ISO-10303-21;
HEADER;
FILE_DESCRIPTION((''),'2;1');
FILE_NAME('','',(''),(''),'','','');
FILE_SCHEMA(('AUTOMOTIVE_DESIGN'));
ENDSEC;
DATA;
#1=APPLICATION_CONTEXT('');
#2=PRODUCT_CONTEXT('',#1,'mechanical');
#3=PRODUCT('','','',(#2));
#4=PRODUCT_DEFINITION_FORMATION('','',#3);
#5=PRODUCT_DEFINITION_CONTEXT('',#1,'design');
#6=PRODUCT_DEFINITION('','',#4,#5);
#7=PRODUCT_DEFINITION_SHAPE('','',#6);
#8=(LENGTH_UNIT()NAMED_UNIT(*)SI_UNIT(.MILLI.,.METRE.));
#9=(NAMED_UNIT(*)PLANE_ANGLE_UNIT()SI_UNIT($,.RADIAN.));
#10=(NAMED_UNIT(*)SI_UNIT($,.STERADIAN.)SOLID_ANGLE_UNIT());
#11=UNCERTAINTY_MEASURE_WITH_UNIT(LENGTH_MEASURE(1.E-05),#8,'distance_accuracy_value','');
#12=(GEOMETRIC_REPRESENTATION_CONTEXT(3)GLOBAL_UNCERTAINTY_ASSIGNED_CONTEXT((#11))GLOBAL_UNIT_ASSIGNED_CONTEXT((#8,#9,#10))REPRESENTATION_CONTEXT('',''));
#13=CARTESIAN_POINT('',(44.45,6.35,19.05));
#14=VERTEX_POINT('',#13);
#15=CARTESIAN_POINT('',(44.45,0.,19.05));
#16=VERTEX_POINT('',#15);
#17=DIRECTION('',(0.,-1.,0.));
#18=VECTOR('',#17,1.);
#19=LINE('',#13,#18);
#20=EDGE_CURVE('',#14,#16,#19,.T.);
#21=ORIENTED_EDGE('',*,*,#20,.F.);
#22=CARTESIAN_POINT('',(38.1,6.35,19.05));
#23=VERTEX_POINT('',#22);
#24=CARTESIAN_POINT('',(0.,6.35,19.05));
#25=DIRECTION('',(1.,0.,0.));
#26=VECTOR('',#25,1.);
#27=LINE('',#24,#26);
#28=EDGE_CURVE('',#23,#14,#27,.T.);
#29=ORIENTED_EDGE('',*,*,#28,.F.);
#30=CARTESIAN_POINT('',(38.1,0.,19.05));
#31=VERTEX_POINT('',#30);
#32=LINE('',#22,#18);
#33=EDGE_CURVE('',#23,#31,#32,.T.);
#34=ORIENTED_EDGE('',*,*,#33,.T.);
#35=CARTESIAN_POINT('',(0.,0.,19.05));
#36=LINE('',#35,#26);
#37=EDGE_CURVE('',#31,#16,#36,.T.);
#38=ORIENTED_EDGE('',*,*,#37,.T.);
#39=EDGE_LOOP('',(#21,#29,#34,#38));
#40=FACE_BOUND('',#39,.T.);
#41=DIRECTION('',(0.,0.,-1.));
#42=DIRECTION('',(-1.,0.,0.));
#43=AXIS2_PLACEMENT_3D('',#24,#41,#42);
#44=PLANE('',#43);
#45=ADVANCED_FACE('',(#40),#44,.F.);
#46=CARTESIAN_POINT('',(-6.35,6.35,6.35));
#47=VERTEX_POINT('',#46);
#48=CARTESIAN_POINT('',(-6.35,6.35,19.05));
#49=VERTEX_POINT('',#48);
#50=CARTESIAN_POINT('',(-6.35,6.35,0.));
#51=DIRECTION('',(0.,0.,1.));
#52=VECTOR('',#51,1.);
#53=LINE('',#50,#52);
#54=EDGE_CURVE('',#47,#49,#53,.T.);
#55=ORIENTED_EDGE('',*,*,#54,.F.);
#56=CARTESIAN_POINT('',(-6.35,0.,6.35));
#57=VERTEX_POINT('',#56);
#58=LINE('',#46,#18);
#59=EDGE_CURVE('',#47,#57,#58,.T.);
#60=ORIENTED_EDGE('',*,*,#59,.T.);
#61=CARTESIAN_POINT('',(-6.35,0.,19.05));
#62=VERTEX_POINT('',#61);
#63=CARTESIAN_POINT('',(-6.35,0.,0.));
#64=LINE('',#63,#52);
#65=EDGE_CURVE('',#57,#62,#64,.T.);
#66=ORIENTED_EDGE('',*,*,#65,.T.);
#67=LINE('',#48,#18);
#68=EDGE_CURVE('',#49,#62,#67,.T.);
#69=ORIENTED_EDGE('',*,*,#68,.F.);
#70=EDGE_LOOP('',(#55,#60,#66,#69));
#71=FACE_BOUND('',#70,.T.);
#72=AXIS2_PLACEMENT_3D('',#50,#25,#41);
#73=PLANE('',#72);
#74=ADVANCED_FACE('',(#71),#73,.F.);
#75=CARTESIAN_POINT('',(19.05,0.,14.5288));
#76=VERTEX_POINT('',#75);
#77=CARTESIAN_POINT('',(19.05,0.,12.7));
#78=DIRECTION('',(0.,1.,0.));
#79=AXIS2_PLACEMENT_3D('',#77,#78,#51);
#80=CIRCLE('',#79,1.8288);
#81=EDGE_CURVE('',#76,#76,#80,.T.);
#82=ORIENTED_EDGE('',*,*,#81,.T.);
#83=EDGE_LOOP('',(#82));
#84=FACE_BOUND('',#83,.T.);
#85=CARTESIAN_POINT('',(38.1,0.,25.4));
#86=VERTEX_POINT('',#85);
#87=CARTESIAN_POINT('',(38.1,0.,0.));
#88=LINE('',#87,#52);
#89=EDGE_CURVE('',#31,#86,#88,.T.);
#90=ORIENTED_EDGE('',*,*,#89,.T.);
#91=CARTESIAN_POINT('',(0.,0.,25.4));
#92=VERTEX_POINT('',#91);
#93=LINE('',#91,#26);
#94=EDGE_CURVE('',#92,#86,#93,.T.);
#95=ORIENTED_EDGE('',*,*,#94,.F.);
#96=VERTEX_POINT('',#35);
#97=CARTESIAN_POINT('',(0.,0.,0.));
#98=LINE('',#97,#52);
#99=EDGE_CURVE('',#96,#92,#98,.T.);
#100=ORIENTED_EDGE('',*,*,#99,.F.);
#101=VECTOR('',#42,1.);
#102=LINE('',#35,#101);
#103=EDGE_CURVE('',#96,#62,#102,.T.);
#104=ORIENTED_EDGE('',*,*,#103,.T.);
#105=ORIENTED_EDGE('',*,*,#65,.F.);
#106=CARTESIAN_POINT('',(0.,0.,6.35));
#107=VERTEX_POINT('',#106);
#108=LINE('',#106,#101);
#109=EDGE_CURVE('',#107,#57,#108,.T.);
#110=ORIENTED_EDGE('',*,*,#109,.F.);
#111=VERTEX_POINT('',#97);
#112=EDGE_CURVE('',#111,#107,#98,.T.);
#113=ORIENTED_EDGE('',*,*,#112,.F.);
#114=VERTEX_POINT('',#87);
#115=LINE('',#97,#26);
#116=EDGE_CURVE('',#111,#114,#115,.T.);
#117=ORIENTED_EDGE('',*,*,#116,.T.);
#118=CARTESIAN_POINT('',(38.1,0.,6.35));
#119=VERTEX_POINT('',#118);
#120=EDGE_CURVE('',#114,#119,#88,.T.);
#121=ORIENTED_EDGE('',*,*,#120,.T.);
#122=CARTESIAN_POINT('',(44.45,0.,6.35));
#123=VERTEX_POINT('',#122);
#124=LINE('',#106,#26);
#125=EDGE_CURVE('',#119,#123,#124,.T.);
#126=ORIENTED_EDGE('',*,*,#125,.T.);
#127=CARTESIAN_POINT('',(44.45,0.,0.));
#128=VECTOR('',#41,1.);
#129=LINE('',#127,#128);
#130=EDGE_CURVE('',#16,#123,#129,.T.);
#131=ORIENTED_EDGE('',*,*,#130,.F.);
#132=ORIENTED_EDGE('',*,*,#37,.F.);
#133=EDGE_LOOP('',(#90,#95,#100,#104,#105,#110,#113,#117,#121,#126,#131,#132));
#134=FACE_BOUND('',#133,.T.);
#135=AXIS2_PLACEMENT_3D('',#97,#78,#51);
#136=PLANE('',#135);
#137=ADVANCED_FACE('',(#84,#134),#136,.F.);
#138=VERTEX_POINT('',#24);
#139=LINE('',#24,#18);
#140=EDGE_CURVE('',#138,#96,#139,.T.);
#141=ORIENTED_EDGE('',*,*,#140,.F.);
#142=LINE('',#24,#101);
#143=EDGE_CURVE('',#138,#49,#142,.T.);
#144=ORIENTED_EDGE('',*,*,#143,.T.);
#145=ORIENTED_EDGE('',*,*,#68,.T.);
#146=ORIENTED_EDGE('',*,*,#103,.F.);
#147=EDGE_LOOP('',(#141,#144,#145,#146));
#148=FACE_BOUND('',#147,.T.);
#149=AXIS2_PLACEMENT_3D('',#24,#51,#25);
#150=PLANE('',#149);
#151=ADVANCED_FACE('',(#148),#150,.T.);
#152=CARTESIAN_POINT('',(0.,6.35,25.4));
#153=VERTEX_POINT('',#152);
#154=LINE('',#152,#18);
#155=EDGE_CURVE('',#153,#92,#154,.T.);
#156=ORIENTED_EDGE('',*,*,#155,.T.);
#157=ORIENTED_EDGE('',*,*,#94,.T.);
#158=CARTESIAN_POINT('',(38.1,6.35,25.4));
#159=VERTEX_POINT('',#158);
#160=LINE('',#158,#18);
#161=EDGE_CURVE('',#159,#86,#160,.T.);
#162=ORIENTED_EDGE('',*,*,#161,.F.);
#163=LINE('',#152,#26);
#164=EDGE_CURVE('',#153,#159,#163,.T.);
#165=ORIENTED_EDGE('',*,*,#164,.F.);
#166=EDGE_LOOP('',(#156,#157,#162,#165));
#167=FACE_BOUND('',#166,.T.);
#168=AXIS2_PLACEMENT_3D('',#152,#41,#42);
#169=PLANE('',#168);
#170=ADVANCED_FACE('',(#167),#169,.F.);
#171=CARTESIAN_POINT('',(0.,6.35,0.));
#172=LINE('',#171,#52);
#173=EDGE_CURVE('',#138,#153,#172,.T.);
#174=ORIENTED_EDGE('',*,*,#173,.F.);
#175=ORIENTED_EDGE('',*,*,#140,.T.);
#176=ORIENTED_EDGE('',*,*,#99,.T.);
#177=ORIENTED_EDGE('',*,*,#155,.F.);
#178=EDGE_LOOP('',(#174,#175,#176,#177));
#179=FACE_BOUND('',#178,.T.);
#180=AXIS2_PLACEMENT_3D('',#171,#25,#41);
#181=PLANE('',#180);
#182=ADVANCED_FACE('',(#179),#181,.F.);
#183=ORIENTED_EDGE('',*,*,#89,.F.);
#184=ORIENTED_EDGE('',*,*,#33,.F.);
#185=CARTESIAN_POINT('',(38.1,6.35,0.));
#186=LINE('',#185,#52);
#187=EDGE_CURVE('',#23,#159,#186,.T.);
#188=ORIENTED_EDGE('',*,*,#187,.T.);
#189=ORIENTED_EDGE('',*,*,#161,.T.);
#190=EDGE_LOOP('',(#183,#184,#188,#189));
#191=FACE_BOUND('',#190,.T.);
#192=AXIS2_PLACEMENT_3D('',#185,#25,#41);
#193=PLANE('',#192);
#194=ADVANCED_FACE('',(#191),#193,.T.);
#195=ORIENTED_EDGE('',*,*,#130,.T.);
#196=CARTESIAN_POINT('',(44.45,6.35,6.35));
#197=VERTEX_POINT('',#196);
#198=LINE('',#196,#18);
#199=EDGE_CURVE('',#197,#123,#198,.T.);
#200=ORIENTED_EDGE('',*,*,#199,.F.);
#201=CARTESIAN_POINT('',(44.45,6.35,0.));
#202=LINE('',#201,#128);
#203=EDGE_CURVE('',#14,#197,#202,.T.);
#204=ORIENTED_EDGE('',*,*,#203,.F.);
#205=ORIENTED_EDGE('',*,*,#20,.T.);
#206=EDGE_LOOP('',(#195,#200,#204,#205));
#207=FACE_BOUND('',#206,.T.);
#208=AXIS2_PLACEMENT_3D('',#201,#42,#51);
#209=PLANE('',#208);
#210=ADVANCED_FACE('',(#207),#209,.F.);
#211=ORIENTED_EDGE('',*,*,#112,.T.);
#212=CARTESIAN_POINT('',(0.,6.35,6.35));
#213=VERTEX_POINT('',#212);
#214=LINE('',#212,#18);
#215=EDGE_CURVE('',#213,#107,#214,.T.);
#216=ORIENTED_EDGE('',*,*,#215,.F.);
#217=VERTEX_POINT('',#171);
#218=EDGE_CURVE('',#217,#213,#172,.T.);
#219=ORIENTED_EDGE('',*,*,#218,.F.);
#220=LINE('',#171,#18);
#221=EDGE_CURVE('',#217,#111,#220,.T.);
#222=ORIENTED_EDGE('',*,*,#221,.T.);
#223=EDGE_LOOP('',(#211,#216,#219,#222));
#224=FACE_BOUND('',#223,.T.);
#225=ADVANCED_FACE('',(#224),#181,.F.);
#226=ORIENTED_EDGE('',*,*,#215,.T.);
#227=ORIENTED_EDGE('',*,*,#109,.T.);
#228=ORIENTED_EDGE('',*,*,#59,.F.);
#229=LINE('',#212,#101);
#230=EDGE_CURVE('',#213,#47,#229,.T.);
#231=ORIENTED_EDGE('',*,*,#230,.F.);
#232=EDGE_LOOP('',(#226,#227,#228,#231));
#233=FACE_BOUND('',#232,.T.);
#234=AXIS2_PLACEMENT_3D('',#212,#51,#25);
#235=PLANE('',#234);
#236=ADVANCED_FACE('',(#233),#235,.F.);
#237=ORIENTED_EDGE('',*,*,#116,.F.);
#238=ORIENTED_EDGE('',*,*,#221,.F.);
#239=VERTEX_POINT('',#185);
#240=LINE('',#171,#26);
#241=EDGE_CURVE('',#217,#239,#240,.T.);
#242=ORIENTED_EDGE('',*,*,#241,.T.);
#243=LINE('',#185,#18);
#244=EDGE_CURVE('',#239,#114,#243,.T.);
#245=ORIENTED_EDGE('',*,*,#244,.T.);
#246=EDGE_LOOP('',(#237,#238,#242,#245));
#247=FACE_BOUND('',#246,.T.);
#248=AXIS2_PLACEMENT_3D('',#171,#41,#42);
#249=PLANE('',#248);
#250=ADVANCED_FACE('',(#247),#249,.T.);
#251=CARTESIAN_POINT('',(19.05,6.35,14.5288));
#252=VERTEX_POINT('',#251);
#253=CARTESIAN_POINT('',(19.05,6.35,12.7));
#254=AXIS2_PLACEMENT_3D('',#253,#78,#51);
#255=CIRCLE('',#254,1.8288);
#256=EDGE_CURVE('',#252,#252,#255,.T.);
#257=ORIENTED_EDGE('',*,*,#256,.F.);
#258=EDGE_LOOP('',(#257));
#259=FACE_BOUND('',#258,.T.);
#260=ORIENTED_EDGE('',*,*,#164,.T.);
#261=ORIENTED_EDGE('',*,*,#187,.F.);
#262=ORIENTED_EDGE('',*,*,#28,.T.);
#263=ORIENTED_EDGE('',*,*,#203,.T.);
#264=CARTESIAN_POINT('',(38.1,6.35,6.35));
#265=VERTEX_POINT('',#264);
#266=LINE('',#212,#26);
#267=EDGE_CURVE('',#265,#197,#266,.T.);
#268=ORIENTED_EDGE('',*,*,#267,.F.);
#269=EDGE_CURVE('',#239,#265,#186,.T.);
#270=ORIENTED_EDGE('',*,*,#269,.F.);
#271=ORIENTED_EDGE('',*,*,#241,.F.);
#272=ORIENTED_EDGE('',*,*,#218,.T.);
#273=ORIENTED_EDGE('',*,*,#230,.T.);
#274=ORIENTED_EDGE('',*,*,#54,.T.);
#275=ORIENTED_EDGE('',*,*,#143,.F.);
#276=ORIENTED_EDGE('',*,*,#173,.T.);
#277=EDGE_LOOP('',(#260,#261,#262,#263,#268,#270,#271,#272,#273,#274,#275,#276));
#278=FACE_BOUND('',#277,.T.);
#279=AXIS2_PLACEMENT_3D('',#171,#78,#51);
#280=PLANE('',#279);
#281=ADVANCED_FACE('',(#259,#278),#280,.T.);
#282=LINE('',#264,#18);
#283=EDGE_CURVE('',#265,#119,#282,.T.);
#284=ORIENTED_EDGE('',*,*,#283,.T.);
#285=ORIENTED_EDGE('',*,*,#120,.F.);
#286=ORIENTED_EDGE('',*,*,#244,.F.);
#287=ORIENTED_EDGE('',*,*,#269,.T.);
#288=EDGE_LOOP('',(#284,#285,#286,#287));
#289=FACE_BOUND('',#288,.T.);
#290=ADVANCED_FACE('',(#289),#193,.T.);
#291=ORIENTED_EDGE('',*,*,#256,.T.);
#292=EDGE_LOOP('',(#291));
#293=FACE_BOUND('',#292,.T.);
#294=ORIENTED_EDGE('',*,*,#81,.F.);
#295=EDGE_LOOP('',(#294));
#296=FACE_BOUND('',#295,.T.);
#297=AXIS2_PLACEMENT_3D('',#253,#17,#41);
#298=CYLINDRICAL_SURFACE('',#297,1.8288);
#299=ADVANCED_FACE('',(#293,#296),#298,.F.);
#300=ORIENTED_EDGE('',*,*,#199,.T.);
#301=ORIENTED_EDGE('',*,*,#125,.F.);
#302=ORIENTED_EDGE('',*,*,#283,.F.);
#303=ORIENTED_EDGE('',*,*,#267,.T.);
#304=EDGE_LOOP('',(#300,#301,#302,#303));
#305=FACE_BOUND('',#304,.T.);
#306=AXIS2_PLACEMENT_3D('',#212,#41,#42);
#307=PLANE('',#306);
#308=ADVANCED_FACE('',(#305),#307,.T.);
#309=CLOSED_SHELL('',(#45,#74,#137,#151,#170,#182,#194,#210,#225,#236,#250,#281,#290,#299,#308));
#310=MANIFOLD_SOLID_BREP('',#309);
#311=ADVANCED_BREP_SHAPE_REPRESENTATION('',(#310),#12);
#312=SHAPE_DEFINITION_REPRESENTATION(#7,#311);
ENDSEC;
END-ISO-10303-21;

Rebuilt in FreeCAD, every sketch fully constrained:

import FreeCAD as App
import Part
import Sketcher
Q = App.Units.Quantity

doc = App.newDocument("Part")
params = doc.addObject("Spreadsheet::Sheet", "Params")
for row, (alias, value) in enumerate([
    ("sketch1_diameter", "0.144 in"),
    ("sketch1_width", "1.5 in"),
    ("sketch1_height", "0.5 in"),
    ("pad1_length", "0.25 in"),
], start=1):
    params.set(f"A{row}", alias)
    params.set(f"B{row}", "=" + value)
    params.setAlias(f"B{row}", alias)

body = doc.addObject("PartDesign::Body", "Body")

# Sketch on XZ plane
sketch1 = body.newObject("Sketcher::SketchObject", "Sketch")
sketch1.AttachmentSupport = (doc.getObject("XZ_Plane"), [""])
sketch1.MapMode = "FlatFace"
sketch1.addGeometry(Part.LineSegment(App.Vector(0, 19.1, 0), App.Vector(0, 25.4, 0)), False)
sketch1.addGeometry(Part.LineSegment(App.Vector(0, 25.4, 0), App.Vector(38.1, 25.4, 0)), False)
sketch1.addGeometry(Part.LineSegment(App.Vector(38.1, 25.4, 0), App.Vector(38.1, 19.1, 0)), False)
sketch1.addGeometry(Part.LineSegment(App.Vector(38.1, 19.1, 0), App.Vector(44.5, 19.1, 0)), False)
sketch1.addGeometry(Part.LineSegment(App.Vector(44.5, 19.1, 0), App.Vector(44.5, 6.3, 0)), False)
sketch1.addGeometry(Part.LineSegment(App.Vector(44.5, 6.3, 0), App.Vector(38.1, 6.3, 0)), False)
sketch1.addGeometry(Part.LineSegment(App.Vector(38.1, 6.3, 0), App.Vector(38.1, 0, 0)), False)
sketch1.addGeometry(Part.LineSegment(App.Vector(38.1, 0, 0), App.Vector(0, 0, 0)), False)
sketch1.addGeometry(Part.LineSegment(App.Vector(0, 0, 0), App.Vector(0, 6.3, 0)), False)
sketch1.addGeometry(Part.LineSegment(App.Vector(0, 6.3, 0), App.Vector(-6.3, 6.3, 0)), False)
sketch1.addGeometry(Part.LineSegment(App.Vector(-6.3, 6.3, 0), App.Vector(-6.3, 19.1, 0)), False)
sketch1.addGeometry(Part.LineSegment(App.Vector(-6.3, 19.1, 0), App.Vector(0, 19.1, 0)), False)
sketch1.addGeometry(Part.Circle(App.Vector(19.1, 12.7, 0), App.Vector(0, 0, 1), 1.8), False)
sketch1.addConstraint(Sketcher.Constraint("Coincident", 0, 2, 1, 1))
sketch1.addConstraint(Sketcher.Constraint("Coincident", 1, 2, 2, 1))
sketch1.addConstraint(Sketcher.Constraint("Coincident", 2, 2, 3, 1))
sketch1.addConstraint(Sketcher.Constraint("Coincident", 3, 2, 4, 1))
sketch1.addConstraint(Sketcher.Constraint("Coincident", 4, 2, 5, 1))
sketch1.addConstraint(Sketcher.Constraint("Coincident", 5, 2, 6, 1))
sketch1.addConstraint(Sketcher.Constraint("Coincident", 6, 2, 7, 1))
sketch1.addConstraint(Sketcher.Constraint("Coincident", 7, 2, 8, 1))
sketch1.addConstraint(Sketcher.Constraint("Coincident", 8, 2, 9, 1))
sketch1.addConstraint(Sketcher.Constraint("Coincident", 9, 2, 10, 1))
sketch1.addConstraint(Sketcher.Constraint("Coincident", 10, 2, 11, 1))
sketch1.addConstraint(Sketcher.Constraint("Coincident", 11, 2, 0, 1))
sketch1.addConstraint(Sketcher.Constraint("Vertical", 0))
sketch1.addConstraint(Sketcher.Constraint("Horizontal", 1))
sketch1.addConstraint(Sketcher.Constraint("Vertical", 2))
sketch1.addConstraint(Sketcher.Constraint("Horizontal", 3))
sketch1.addConstraint(Sketcher.Constraint("Vertical", 4))
sketch1.addConstraint(Sketcher.Constraint("Horizontal", 5))
sketch1.addConstraint(Sketcher.Constraint("Vertical", 6))
sketch1.addConstraint(Sketcher.Constraint("Horizontal", 7))
sketch1.addConstraint(Sketcher.Constraint("Vertical", 8))
sketch1.addConstraint(Sketcher.Constraint("Horizontal", 9))
sketch1.addConstraint(Sketcher.Constraint("Vertical", 10))
sketch1.addConstraint(Sketcher.Constraint("Horizontal", 11))
sketch1.addConstraint(Sketcher.Constraint("Coincident", 7, 2, -1, 1))
sketch1.addConstraint(Sketcher.Constraint("PointOnObject", 0, 2, -2))
sketch1.addConstraint(Sketcher.Constraint("Horizontal", 5, 2, 8, 2))
sketch1.addConstraint(Sketcher.Constraint("Horizontal", 3, 2, 10, 2))
sketch1.addConstraint(Sketcher.Constraint("Vertical", 2, 2, 5, 2))
sketch1.addConstraint(Sketcher.Constraint("Equal", 5, 9))
sketch1.addConstraint(Sketcher.Constraint("Equal", 11, 0))
sketch1.addConstraint(Sketcher.Constraint("Equal", 2, 6))
sketch1.addConstraint(Sketcher.Constraint("Diameter", 12, Q("0.144 in")))
sketch1.addConstraint(Sketcher.Constraint("DistanceX", 1, 1, 1, 2, Q("1.5 in")))
sketch1.addConstraint(Sketcher.Constraint("DistanceY", 4, 2, 4, 1, Q("0.5 in")))
sketch1.addConstraint(Sketcher.Constraint("DistanceY", -1, 1, 0, 2, Q("1 in")))
sketch1.addConstraint(Sketcher.Constraint("DistanceX", 12, 3, 3, 2, Q("1 in")))
sketch1.addConstraint(Sketcher.Constraint("DistanceY", -1, 1, 12, 3, Q("0.5 in")))
sketch1.setExpression("Constraints[32]", "Params.sketch1_diameter")
sketch1.setExpression("Constraints[33]", "Params.sketch1_width")
sketch1.setExpression("Constraints[34]", "Params.sketch1_height")
pad1 = body.newObject("PartDesign::Pad", "Pad")
pad1.Profile = sketch1
pad1.setExpression("Length", "Params.pad1_length")
pad1.Reversed = True

doc.recompute()
